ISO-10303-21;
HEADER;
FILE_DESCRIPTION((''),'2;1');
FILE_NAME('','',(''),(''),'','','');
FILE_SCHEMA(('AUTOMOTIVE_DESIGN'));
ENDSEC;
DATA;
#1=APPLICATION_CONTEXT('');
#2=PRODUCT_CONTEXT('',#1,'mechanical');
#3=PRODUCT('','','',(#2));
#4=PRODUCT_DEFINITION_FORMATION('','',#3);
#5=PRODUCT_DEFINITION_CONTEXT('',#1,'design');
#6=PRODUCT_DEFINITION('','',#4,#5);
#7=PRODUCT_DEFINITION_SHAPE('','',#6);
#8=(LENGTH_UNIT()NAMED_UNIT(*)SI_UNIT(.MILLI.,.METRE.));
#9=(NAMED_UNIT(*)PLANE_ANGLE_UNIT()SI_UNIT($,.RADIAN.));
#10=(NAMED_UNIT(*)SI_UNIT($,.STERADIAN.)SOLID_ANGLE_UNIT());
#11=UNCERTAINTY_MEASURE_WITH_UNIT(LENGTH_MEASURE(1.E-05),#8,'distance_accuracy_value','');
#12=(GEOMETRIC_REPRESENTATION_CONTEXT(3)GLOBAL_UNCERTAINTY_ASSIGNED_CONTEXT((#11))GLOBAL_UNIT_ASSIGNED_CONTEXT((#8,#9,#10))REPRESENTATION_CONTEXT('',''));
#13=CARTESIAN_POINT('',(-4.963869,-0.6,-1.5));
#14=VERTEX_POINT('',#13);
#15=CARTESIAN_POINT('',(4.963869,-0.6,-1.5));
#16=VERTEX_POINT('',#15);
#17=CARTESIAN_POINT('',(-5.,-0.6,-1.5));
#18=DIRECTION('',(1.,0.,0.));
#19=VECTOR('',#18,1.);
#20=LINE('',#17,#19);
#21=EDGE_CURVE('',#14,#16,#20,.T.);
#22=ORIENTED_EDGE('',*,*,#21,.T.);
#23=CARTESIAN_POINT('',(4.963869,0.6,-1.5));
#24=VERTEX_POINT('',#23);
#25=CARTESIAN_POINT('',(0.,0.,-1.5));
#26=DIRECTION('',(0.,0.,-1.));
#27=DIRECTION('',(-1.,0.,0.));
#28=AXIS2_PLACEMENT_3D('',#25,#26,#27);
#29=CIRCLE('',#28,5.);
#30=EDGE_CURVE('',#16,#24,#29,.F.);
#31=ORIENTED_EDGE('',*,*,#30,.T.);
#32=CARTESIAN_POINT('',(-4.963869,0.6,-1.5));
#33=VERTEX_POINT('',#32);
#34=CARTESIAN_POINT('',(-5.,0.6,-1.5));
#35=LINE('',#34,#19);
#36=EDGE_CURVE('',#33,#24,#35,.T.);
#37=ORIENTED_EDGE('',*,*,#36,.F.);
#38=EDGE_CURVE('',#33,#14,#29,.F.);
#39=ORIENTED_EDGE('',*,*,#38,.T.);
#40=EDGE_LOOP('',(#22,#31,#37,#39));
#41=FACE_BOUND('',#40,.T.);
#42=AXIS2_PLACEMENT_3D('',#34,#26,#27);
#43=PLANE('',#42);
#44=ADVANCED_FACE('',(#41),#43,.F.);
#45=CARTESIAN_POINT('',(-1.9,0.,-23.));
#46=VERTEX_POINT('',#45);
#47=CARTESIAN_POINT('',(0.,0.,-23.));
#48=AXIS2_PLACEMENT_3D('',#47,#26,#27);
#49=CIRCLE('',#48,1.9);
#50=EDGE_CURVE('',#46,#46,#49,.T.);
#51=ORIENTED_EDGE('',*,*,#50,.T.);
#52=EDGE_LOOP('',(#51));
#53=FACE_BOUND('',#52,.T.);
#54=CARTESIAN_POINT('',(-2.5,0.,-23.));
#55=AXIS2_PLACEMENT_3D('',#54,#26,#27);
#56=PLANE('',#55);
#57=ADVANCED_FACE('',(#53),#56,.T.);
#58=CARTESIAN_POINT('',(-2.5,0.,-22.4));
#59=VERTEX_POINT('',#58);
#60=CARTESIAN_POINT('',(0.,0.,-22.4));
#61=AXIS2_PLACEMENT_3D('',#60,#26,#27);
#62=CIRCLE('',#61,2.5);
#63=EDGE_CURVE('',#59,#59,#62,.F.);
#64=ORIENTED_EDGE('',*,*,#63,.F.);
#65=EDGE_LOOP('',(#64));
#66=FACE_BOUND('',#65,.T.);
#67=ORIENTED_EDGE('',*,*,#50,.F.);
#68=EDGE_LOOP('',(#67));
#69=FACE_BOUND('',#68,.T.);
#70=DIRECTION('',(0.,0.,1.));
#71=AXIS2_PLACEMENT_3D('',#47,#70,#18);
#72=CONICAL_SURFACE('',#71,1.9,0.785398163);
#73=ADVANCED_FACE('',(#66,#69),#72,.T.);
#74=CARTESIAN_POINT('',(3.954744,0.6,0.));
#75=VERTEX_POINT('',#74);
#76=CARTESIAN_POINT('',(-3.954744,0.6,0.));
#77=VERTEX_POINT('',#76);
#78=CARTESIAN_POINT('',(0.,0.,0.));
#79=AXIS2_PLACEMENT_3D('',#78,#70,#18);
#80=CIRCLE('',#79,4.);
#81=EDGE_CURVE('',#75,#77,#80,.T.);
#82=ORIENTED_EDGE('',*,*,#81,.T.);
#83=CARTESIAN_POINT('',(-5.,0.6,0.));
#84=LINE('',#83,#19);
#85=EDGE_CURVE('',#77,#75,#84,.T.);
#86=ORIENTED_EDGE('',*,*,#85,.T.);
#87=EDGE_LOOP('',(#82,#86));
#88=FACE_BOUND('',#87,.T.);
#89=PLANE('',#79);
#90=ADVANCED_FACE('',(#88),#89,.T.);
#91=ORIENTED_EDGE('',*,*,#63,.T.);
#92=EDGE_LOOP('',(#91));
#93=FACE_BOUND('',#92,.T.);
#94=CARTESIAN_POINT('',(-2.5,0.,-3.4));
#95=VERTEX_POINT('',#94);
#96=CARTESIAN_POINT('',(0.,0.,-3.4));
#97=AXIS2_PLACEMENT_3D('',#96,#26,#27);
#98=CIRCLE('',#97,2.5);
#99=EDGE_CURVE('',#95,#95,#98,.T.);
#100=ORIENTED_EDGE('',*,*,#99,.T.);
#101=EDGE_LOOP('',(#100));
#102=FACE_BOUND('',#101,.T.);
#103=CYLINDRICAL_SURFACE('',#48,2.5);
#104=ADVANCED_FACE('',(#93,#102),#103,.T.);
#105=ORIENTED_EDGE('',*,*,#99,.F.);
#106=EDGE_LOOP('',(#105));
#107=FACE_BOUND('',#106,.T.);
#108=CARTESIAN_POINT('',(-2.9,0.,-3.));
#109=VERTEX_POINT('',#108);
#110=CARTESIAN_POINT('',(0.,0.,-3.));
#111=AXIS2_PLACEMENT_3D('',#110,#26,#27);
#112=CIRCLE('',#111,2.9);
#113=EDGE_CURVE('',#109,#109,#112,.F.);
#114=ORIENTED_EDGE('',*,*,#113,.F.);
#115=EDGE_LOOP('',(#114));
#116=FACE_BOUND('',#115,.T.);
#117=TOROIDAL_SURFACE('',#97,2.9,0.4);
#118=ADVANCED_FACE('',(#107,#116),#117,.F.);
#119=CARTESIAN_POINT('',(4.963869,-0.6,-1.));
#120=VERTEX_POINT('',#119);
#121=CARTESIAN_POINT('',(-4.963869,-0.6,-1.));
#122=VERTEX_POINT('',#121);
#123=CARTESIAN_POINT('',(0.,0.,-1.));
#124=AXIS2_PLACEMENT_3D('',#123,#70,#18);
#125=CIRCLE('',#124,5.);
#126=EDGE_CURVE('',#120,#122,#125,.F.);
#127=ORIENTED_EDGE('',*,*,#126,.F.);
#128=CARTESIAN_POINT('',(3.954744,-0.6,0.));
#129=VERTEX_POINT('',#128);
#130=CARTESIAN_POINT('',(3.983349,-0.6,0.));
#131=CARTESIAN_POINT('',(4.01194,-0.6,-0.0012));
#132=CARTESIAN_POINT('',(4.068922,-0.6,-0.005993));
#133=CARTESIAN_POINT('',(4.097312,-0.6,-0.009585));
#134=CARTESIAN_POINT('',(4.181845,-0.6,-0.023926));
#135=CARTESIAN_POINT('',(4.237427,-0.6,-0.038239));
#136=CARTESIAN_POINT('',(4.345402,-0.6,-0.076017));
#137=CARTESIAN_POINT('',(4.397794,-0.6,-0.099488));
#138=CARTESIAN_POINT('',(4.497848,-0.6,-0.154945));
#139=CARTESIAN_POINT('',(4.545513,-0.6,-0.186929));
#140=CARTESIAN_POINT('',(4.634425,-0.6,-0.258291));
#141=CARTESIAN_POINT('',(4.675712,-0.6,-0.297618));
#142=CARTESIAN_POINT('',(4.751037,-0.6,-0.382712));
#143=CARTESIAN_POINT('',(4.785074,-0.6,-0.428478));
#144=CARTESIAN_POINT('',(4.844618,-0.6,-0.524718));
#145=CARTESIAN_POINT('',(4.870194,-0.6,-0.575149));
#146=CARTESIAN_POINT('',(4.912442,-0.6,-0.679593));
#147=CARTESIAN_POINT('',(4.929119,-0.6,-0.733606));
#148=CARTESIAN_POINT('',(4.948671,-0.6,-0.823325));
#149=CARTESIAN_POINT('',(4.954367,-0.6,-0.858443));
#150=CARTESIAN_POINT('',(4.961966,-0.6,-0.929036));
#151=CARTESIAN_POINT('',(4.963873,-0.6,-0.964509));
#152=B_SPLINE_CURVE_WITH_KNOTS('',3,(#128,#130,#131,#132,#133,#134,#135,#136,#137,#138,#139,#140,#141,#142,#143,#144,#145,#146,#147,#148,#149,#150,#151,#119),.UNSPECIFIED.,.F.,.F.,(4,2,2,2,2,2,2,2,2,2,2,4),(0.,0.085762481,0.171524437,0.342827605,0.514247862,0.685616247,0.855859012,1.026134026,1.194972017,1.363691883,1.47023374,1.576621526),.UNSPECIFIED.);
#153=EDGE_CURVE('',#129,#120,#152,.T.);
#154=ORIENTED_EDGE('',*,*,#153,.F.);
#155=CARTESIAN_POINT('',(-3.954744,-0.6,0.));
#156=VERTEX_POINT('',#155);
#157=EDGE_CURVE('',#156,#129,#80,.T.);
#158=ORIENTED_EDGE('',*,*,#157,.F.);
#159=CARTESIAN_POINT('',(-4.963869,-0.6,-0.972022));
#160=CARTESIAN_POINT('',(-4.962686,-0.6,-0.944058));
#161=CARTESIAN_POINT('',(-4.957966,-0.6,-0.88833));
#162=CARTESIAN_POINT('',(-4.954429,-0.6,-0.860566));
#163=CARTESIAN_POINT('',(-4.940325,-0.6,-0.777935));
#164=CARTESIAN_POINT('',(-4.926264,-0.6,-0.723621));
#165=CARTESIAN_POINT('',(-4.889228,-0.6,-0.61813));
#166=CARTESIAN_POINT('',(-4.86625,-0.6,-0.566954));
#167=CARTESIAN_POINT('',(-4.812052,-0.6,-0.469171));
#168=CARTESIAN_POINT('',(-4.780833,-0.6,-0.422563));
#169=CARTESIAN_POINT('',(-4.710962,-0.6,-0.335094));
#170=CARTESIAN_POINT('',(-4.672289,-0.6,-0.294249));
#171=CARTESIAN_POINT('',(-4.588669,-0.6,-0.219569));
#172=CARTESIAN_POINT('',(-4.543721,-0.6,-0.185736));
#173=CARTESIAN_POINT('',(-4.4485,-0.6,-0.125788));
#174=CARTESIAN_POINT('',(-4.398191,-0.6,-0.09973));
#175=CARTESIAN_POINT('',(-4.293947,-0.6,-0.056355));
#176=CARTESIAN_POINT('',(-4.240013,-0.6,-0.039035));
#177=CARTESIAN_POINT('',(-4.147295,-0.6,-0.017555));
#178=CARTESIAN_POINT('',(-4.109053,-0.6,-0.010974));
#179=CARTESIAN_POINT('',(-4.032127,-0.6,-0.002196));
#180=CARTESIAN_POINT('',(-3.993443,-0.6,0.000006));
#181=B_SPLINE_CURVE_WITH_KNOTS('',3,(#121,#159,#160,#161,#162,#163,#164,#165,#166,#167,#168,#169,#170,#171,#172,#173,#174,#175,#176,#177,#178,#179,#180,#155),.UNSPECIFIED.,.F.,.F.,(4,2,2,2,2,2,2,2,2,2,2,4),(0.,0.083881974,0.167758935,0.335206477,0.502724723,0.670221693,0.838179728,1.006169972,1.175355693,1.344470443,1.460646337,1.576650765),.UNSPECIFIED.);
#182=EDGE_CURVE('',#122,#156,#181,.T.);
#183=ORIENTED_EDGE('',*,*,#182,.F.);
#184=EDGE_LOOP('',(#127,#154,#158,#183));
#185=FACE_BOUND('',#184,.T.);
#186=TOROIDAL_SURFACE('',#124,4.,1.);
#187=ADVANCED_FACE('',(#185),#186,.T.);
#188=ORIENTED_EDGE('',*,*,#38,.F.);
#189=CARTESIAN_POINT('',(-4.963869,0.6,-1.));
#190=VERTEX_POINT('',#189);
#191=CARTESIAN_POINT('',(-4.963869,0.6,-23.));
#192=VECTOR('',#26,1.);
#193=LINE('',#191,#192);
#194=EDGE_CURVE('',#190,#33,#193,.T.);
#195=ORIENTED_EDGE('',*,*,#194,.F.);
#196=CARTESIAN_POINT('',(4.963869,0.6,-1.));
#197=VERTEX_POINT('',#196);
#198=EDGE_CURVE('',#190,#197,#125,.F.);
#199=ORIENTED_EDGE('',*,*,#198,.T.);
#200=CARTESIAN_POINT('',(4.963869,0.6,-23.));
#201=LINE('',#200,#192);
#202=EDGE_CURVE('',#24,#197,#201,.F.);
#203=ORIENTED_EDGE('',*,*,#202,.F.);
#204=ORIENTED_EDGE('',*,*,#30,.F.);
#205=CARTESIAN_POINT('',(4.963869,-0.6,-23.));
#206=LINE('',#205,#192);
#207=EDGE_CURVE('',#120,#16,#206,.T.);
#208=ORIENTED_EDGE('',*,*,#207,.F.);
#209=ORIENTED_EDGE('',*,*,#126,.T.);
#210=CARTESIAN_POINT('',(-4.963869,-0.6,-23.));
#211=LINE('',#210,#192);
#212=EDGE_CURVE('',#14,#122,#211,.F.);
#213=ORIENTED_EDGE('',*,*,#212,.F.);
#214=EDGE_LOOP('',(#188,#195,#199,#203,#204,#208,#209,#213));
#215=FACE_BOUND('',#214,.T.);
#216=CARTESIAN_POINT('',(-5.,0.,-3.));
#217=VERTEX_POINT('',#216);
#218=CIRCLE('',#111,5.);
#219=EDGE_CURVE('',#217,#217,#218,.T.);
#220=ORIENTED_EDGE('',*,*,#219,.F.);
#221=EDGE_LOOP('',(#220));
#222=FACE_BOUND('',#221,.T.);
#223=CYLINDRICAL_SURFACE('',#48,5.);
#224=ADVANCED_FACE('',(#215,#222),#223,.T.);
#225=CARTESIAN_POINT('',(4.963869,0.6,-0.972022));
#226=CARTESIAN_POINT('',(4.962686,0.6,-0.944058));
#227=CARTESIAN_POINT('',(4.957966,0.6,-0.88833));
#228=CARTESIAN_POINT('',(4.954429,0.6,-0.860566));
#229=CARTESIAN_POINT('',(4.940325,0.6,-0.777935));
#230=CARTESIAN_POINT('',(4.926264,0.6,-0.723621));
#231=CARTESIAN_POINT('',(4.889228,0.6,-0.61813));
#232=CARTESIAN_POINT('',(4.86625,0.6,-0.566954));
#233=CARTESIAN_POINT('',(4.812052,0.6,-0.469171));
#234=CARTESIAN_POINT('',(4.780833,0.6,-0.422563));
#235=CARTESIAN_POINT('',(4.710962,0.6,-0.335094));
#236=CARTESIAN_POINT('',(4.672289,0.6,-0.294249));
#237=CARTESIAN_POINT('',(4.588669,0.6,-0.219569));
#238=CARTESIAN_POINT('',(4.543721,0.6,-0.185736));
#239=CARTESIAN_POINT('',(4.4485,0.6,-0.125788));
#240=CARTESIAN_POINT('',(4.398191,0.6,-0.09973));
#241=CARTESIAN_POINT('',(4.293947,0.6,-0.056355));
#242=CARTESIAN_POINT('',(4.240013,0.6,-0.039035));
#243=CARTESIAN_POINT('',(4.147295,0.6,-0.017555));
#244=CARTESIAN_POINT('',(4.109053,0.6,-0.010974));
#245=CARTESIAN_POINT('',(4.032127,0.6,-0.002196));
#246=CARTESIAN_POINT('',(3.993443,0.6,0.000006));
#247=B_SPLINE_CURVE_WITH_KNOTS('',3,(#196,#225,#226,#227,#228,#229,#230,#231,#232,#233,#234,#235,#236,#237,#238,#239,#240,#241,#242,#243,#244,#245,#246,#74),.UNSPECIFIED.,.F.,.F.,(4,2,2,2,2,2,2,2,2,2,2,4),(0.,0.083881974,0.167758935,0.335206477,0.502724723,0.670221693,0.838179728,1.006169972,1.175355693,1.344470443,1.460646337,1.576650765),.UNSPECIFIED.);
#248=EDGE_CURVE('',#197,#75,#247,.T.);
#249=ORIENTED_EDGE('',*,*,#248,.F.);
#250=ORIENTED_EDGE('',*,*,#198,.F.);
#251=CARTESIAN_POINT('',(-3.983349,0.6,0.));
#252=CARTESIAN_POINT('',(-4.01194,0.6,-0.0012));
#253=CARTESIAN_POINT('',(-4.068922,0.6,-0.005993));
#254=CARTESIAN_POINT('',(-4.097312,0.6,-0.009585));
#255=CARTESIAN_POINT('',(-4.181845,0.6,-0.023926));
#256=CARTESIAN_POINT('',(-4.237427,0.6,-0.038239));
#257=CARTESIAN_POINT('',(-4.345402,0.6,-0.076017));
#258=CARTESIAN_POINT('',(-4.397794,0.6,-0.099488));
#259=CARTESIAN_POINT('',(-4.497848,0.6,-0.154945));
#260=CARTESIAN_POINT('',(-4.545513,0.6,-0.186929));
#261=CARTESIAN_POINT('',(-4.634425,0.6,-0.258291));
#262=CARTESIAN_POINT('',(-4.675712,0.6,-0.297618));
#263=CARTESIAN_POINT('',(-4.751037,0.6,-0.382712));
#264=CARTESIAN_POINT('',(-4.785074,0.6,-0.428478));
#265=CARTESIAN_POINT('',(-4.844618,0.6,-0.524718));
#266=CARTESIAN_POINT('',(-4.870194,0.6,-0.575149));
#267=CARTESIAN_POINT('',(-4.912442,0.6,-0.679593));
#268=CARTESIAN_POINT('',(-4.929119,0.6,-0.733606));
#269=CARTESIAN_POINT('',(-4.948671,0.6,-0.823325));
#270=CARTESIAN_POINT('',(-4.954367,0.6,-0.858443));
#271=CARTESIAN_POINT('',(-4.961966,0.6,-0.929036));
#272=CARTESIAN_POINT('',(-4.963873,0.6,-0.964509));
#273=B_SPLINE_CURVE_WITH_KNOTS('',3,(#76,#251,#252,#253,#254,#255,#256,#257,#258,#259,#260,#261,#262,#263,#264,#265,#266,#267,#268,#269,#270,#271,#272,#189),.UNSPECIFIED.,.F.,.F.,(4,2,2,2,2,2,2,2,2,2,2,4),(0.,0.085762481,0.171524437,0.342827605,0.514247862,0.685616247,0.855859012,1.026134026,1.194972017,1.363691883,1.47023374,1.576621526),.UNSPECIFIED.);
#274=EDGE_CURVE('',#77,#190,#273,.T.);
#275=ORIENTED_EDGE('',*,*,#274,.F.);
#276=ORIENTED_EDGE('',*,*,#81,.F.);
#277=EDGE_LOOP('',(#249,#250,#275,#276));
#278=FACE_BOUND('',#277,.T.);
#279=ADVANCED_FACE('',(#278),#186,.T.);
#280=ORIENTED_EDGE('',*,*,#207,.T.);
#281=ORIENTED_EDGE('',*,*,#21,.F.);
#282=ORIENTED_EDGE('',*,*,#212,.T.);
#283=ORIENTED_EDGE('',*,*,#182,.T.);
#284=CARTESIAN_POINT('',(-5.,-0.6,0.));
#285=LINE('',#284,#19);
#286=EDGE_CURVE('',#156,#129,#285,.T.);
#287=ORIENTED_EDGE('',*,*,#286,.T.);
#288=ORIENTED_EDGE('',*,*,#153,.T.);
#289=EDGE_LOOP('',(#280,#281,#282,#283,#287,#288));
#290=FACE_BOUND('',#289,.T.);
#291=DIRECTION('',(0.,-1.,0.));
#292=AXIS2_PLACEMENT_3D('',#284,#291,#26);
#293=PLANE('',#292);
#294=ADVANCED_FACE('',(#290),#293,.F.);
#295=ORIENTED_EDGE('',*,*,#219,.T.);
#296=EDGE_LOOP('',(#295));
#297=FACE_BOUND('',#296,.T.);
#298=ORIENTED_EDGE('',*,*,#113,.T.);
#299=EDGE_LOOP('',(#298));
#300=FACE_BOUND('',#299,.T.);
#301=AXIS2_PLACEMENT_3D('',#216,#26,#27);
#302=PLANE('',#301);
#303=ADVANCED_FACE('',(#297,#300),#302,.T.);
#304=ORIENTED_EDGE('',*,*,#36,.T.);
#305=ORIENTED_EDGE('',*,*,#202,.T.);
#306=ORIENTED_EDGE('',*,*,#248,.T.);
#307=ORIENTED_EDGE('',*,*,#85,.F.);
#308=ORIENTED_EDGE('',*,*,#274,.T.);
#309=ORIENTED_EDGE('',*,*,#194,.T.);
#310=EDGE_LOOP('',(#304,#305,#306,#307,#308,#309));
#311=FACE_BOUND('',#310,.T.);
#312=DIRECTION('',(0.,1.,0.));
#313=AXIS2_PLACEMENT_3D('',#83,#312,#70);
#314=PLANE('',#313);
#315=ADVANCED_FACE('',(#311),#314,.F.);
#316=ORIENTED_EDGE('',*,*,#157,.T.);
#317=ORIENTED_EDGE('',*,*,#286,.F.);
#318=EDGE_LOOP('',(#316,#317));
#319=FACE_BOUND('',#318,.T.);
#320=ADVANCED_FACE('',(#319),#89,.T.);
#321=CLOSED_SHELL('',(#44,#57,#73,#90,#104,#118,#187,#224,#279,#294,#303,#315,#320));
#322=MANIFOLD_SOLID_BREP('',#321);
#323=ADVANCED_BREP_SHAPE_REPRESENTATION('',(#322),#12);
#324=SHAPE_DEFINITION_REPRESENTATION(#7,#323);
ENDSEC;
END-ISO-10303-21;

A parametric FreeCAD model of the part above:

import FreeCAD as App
import Part
import Sketcher
from FreeCAD import Vector


def edges_at(feature, points):
    """Names of the edges that pass closest to the given points."""
    edges = feature.Shape.Edges
    near = lambda p: min(range(len(edges)), key=lambda i: edges[i].distToShape(Part.Vertex(*p))[0])
    return sorted({f"Edge{near(p) + 1}" for p in points})

doc = App.newDocument("Part")
body = doc.addObject("PartDesign::Body", "Body")

# Sketch on XZ plane
sketch1 = body.newObject("Sketcher::SketchObject", "Sketch")
sketch1.AttachmentSupport = (doc.getObject("XZ_Plane"), [""])
sketch1.MapMode = "FlatFace"
sketch1.addGeometry([
    Part.LineSegment(Vector(-5, 0, 0), Vector(0, 0, 0)),  # 0
    Part.LineSegment(Vector(0, 0, 0), Vector(0, -23, 0)),  # 1
    Part.LineSegment(Vector(0, -23, 0), Vector(-2.5, -23, 0)),  # 2
    Part.LineSegment(Vector(-2.5, -23, 0), Vector(-2.5, -3, 0)),  # 3
    Part.LineSegment(Vector(-2.5, -3, 0), Vector(-5, -3, 0)),  # 4
    Part.LineSegment(Vector(-5, -3, 0), Vector(-5, 0, 0)),  # 5
], False)
sketch1.addConstraint([
    Sketcher.Constraint("Coincident", 0, 2, 1, 1),
    Sketcher.Constraint("Coincident", 1, 2, 2, 1),
    Sketcher.Constraint("Coincident", 2, 2, 3, 1),
    Sketcher.Constraint("Coincident", 3, 2, 4, 1),
    Sketcher.Constraint("Coincident", 4, 2, 5, 1),
    Sketcher.Constraint("Coincident", 5, 2, 0, 1),
    Sketcher.Constraint("Horizontal", 0),
    Sketcher.Constraint("Vertical", 1),
    Sketcher.Constraint("Horizontal", 2),
    Sketcher.Constraint("Vertical", 3),
    Sketcher.Constraint("Horizontal", 4),
    Sketcher.Constraint("Vertical", 5),
    Sketcher.Constraint("Coincident", 0, 2, -1, 1),
    Sketcher.Constraint("Equal", 2, 4),
    Sketcher.Constraint("DistanceX", 0, 1, 0, 2, 5.0),
    Sketcher.Constraint("DistanceY", 1, 2, 1, 1, 23.0),
    Sketcher.Constraint("DistanceY", 3, 1, 3, 2, 20.0),
])
revolution = body.newObject("PartDesign::Revolution", "Revolution")
revolution.Profile = sketch1
revolution.ReferenceAxis = (sketch1, ["V_Axis"])
revolution.Angle = 360

# Sketch on YZ plane
sketch2 = body.newObject("Sketcher::SketchObject", "Sketch001")
sketch2.AttachmentSupport = (doc.getObject("YZ_Plane"), [""])
sketch2.MapMode = "FlatFace"
sketch2.addGeometry([
    Part.LineSegment(Vector(0.6, 0, 0), Vector(-0.6, 0, 0)),
    Part.LineSegment(Vector(-0.6, 0, 0), Vector(-0.6, -1.5, 0)),
    Part.LineSegment(Vector(-0.6, -1.5, 0), Vector(0.6, -1.5, 0)),
    Part.LineSegment(Vector(0.6, -1.5, 0), Vector(0.6, 0, 0)),
], False)
sketch2.addConstraint([
    Sketcher.Constraint("Coincident", 0, 2, 1, 1),
    Sketcher.Constraint("Coincident", 1, 2, 2, 1),
    Sketcher.Constraint("Coincident", 2, 2, 3, 1),
    Sketcher.Constraint("Coincident", 3, 2, 0, 1),
    Sketcher.Constraint("Horizontal", 0),
    Sketcher.Constraint("Vertical", 1),
    Sketcher.Constraint("Horizontal", 2),
    Sketcher.Constraint("Vertical", 3),
    Sketcher.Constraint("Symmetric", 0, 2, 3, 2, -1, 1),
    Sketcher.Constraint("DistanceX", 0, 2, 0, 1, 1.2),
    Sketcher.Constraint("DistanceY", 1, 2, 1, 1, 1.5),
])
pocket1 = body.newObject("PartDesign::Pocket", "Pocket")
pocket1.Profile = sketch2
pocket1.Type = "ThroughAll"
pocket1.Midplane = True
doc.recompute()

chamfer = body.newObject("PartDesign::Chamfer", "Chamfer")
chamfer.Base = (pocket1, edges_at(pocket1, [(2.5, 0, -23)]))
chamfer.Size = 0.6
doc.recompute()

fillet = body.newObject("PartDesign::Fillet", "Fillet")
fillet.Base = (chamfer, edges_at(chamfer, [(0, 5, 0), (0, -5, 0)]))
fillet.Radius = 1
doc.recompute()

fillet2 = body.newObject("PartDesign::Fillet", "Fillet001")
fillet2.Base = (fillet, edges_at(fillet, [(2.5, 0, -3)]))
fillet2.Radius = 0.4

doc.recompute()
